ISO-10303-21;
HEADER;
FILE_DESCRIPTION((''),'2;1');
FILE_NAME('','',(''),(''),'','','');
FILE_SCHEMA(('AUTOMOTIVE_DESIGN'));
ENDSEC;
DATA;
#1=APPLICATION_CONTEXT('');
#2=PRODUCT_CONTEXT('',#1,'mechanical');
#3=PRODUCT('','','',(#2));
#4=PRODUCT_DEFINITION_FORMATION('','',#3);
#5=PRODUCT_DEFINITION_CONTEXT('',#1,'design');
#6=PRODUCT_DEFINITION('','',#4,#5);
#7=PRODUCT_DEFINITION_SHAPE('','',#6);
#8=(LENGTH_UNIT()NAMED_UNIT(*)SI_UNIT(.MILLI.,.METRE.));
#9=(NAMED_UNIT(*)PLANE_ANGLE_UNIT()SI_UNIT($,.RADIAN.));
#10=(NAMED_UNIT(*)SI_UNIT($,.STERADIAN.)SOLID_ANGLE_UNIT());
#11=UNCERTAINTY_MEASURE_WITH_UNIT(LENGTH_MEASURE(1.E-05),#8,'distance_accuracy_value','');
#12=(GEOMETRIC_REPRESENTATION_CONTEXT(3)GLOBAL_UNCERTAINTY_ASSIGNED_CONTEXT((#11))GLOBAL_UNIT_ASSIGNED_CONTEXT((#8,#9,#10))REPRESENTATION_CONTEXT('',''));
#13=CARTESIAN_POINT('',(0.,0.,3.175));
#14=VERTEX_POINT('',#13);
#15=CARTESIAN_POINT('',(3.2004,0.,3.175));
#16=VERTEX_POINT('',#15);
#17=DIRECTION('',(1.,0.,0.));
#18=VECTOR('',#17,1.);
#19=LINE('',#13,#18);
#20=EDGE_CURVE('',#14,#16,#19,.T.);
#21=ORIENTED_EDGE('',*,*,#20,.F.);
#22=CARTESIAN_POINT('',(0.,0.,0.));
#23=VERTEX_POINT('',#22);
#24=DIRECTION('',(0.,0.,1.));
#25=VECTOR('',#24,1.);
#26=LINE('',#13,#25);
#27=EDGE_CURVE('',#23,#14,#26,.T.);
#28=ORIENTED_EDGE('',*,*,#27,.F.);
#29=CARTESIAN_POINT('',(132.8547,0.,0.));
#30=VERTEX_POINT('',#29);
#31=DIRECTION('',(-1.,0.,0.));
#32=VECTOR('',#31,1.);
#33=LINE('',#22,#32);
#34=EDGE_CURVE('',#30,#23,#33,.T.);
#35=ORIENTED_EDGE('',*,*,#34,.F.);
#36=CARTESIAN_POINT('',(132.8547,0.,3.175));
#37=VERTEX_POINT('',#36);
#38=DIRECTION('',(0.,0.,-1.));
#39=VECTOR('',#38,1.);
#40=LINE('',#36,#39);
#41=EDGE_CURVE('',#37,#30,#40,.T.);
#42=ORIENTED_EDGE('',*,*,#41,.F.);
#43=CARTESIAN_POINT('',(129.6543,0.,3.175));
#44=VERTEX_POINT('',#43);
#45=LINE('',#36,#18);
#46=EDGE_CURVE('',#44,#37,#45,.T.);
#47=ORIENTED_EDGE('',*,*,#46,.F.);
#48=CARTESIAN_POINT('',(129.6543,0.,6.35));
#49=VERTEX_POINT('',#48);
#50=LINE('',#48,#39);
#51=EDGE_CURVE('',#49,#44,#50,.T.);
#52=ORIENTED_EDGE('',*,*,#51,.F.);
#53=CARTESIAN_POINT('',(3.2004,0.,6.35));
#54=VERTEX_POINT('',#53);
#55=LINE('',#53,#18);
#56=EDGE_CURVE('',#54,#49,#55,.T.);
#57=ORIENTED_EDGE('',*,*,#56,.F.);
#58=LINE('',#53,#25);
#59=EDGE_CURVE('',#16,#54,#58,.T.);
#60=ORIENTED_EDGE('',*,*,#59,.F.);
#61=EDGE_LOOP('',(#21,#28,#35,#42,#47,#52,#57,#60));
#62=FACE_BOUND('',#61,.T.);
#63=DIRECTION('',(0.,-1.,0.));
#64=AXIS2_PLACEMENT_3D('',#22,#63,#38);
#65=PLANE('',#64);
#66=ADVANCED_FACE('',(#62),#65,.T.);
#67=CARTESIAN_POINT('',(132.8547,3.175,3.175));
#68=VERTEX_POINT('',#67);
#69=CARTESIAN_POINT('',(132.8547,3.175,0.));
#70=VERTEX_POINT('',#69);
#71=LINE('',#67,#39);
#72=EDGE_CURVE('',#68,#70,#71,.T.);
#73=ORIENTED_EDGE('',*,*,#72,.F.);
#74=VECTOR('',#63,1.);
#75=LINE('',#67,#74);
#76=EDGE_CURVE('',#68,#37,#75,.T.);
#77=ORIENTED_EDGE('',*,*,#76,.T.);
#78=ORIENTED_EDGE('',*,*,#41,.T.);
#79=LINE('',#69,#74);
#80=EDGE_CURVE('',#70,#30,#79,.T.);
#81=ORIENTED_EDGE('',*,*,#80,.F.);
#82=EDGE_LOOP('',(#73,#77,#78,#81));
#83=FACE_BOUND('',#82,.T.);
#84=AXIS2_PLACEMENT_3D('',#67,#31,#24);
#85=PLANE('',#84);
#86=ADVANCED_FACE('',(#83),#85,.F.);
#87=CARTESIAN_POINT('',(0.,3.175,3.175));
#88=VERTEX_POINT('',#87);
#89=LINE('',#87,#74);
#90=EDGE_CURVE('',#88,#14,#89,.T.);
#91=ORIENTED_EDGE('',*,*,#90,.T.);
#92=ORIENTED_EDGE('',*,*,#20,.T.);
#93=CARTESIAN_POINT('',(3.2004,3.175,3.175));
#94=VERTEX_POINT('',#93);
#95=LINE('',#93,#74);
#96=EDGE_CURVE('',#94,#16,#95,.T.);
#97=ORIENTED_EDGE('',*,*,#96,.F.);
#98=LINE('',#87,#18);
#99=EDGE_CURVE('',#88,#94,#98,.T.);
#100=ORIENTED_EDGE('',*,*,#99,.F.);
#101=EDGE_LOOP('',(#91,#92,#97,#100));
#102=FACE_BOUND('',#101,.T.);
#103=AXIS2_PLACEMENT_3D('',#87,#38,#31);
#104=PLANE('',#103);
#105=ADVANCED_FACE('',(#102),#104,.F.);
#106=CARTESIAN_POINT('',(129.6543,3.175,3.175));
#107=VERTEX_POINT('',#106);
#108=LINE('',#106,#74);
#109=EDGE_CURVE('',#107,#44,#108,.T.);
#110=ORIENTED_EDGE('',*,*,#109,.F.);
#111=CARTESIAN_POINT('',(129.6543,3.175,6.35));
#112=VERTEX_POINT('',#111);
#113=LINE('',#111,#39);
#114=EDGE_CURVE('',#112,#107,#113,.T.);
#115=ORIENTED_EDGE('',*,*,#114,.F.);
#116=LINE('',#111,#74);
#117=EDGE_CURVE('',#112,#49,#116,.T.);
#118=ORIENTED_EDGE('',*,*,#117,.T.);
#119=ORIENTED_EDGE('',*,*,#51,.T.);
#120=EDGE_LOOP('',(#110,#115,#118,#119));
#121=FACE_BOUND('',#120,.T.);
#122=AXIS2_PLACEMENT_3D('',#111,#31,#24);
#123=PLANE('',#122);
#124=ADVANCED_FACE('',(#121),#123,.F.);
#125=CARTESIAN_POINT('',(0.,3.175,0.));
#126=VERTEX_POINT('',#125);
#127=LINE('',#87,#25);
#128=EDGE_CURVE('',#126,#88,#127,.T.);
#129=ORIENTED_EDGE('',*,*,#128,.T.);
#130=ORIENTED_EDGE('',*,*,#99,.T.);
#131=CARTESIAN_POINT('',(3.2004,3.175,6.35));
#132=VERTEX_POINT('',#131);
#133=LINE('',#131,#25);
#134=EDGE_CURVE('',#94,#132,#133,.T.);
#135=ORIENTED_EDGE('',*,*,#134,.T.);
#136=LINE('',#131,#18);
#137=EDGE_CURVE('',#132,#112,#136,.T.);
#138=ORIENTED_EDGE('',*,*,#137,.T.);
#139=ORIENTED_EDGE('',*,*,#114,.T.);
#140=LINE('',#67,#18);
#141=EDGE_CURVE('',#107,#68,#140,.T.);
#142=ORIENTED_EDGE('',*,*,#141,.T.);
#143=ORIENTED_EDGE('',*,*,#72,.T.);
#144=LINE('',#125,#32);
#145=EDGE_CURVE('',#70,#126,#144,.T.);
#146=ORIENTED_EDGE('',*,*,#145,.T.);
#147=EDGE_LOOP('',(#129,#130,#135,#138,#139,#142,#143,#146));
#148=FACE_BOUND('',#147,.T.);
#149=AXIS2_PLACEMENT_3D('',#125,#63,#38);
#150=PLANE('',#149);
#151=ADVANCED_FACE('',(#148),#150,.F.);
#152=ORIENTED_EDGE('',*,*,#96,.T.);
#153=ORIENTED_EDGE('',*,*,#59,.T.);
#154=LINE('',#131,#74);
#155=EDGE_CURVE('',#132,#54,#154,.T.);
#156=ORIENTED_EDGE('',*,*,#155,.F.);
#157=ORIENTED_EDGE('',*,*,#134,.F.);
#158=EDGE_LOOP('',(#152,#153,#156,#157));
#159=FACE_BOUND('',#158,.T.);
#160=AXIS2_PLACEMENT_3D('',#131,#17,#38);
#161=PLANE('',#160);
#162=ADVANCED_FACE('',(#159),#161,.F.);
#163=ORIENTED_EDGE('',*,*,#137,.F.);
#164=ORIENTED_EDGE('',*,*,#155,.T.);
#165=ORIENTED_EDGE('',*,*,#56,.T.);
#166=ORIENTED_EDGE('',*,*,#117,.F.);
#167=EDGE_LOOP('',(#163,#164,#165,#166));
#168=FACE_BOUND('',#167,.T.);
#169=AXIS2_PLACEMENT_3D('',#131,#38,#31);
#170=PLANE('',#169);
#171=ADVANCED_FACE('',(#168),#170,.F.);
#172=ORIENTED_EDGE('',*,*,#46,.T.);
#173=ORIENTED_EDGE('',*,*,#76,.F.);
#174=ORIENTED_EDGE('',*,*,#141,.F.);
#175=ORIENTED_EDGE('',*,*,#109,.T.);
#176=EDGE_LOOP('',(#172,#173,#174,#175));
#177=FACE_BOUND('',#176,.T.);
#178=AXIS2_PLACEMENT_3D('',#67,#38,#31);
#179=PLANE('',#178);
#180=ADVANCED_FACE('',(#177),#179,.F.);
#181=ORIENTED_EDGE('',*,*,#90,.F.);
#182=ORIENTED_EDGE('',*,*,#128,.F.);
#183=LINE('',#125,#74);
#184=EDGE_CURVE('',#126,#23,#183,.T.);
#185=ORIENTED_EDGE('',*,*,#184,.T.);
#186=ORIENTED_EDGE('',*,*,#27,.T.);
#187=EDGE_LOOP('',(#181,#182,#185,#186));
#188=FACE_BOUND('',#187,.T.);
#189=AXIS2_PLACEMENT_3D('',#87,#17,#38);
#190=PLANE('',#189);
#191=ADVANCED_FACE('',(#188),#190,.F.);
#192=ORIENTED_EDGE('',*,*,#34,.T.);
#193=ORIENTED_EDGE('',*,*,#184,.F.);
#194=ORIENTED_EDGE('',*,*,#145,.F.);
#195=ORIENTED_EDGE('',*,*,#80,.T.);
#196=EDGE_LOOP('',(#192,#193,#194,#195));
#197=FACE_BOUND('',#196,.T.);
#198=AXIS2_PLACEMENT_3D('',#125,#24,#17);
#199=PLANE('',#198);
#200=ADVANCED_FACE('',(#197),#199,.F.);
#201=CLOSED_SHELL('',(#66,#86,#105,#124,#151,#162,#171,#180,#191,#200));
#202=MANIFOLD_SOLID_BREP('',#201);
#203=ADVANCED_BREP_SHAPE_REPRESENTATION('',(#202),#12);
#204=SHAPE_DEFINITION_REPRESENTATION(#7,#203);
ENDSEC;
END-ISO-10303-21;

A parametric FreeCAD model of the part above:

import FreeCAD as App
import Part
import Sketcher

V = App.Vector
Q = App.Units.Quantity


def add_polygon(sketch, points):
    """Adds a closed chain of lines whose ends are joined by coincident constraints."""
    first, n = sketch.GeometryCount, len(points)
    for a, b in zip(points, points[1:] + points[:1]):
        sketch.addGeometry(Part.LineSegment(App.Vector(*a, 0), App.Vector(*b, 0)), False)
    for i in range(n):
        sketch.addConstraint(Sketcher.Constraint("Coincident", first + i, 2, first + (i + 1) % n, 1))

doc = App.newDocument("Part")
params = doc.addObject("Spreadsheet::Sheet", "Params")
for row, (alias, value) in enumerate([
    ("sketch1_width", "0.126 in"),
    ("sketch1_height", "0.125 in"),
    ("pad1_length", "0.125 in"),
], start=1):
    params.set(f"A{row}", alias)
    params.set(f"B{row}", "=" + value)
    params.setAlias(f"B{row}", alias)

body = doc.addObject("PartDesign::Body", "Body")

sketch1 = body.newObject("Sketcher::SketchObject", "Sketch")
sketch1.AttachmentSupport = (doc.getObject("XZ_Plane"), [""])
sketch1.MapMode = "FlatFace"
add_polygon(sketch1, [(3.2004, 6.35), (129.6543, 6.35), (129.6543, 3.175), (132.8547, 3.175), (132.8547, 0), (0, 0), (0, 3.175), (3.2004, 3.175)])
sketch1.addConstraint([
    Sketcher.Constraint("Horizontal", 0),
    Sketcher.Constraint("Vertical", 1),
    Sketcher.Constraint("Horizontal", 2),
    Sketcher.Constraint("Vertical", 3),
    Sketcher.Constraint("Horizontal", 4),
    Sketcher.Constraint("Vertical", 5),
    Sketcher.Constraint("Horizontal", 6),
    Sketcher.Constraint("Vertical", 7),
    Sketcher.Constraint("Coincident", 4, 2, -1, 1),
    Sketcher.Constraint("Horizontal", 2, 2, 5, 2),
    Sketcher.Constraint("Equal", 2, 6),
    Sketcher.Constraint("Equal", 1, 3),
    Sketcher.Constraint("DistanceX", 2, 1, 2, 2, Q("0.126 in")),
    Sketcher.Constraint("DistanceY", 1, 2, 1, 1, Q("0.125 in")),
    Sketcher.Constraint("DistanceX", 0, 1, 0, 2, Q("4.9785 in")),
])
sketch1.setExpression("Constraints[20]", "Params.sketch1_width")
sketch1.setExpression("Constraints[21]", "Params.sketch1_height")
pad1 = body.newObject("PartDesign::Pad", "Pad")
pad1.Profile = sketch1
pad1.setExpression("Length", "Params.pad1_length")
pad1.Reversed = True

doc.recompute()
